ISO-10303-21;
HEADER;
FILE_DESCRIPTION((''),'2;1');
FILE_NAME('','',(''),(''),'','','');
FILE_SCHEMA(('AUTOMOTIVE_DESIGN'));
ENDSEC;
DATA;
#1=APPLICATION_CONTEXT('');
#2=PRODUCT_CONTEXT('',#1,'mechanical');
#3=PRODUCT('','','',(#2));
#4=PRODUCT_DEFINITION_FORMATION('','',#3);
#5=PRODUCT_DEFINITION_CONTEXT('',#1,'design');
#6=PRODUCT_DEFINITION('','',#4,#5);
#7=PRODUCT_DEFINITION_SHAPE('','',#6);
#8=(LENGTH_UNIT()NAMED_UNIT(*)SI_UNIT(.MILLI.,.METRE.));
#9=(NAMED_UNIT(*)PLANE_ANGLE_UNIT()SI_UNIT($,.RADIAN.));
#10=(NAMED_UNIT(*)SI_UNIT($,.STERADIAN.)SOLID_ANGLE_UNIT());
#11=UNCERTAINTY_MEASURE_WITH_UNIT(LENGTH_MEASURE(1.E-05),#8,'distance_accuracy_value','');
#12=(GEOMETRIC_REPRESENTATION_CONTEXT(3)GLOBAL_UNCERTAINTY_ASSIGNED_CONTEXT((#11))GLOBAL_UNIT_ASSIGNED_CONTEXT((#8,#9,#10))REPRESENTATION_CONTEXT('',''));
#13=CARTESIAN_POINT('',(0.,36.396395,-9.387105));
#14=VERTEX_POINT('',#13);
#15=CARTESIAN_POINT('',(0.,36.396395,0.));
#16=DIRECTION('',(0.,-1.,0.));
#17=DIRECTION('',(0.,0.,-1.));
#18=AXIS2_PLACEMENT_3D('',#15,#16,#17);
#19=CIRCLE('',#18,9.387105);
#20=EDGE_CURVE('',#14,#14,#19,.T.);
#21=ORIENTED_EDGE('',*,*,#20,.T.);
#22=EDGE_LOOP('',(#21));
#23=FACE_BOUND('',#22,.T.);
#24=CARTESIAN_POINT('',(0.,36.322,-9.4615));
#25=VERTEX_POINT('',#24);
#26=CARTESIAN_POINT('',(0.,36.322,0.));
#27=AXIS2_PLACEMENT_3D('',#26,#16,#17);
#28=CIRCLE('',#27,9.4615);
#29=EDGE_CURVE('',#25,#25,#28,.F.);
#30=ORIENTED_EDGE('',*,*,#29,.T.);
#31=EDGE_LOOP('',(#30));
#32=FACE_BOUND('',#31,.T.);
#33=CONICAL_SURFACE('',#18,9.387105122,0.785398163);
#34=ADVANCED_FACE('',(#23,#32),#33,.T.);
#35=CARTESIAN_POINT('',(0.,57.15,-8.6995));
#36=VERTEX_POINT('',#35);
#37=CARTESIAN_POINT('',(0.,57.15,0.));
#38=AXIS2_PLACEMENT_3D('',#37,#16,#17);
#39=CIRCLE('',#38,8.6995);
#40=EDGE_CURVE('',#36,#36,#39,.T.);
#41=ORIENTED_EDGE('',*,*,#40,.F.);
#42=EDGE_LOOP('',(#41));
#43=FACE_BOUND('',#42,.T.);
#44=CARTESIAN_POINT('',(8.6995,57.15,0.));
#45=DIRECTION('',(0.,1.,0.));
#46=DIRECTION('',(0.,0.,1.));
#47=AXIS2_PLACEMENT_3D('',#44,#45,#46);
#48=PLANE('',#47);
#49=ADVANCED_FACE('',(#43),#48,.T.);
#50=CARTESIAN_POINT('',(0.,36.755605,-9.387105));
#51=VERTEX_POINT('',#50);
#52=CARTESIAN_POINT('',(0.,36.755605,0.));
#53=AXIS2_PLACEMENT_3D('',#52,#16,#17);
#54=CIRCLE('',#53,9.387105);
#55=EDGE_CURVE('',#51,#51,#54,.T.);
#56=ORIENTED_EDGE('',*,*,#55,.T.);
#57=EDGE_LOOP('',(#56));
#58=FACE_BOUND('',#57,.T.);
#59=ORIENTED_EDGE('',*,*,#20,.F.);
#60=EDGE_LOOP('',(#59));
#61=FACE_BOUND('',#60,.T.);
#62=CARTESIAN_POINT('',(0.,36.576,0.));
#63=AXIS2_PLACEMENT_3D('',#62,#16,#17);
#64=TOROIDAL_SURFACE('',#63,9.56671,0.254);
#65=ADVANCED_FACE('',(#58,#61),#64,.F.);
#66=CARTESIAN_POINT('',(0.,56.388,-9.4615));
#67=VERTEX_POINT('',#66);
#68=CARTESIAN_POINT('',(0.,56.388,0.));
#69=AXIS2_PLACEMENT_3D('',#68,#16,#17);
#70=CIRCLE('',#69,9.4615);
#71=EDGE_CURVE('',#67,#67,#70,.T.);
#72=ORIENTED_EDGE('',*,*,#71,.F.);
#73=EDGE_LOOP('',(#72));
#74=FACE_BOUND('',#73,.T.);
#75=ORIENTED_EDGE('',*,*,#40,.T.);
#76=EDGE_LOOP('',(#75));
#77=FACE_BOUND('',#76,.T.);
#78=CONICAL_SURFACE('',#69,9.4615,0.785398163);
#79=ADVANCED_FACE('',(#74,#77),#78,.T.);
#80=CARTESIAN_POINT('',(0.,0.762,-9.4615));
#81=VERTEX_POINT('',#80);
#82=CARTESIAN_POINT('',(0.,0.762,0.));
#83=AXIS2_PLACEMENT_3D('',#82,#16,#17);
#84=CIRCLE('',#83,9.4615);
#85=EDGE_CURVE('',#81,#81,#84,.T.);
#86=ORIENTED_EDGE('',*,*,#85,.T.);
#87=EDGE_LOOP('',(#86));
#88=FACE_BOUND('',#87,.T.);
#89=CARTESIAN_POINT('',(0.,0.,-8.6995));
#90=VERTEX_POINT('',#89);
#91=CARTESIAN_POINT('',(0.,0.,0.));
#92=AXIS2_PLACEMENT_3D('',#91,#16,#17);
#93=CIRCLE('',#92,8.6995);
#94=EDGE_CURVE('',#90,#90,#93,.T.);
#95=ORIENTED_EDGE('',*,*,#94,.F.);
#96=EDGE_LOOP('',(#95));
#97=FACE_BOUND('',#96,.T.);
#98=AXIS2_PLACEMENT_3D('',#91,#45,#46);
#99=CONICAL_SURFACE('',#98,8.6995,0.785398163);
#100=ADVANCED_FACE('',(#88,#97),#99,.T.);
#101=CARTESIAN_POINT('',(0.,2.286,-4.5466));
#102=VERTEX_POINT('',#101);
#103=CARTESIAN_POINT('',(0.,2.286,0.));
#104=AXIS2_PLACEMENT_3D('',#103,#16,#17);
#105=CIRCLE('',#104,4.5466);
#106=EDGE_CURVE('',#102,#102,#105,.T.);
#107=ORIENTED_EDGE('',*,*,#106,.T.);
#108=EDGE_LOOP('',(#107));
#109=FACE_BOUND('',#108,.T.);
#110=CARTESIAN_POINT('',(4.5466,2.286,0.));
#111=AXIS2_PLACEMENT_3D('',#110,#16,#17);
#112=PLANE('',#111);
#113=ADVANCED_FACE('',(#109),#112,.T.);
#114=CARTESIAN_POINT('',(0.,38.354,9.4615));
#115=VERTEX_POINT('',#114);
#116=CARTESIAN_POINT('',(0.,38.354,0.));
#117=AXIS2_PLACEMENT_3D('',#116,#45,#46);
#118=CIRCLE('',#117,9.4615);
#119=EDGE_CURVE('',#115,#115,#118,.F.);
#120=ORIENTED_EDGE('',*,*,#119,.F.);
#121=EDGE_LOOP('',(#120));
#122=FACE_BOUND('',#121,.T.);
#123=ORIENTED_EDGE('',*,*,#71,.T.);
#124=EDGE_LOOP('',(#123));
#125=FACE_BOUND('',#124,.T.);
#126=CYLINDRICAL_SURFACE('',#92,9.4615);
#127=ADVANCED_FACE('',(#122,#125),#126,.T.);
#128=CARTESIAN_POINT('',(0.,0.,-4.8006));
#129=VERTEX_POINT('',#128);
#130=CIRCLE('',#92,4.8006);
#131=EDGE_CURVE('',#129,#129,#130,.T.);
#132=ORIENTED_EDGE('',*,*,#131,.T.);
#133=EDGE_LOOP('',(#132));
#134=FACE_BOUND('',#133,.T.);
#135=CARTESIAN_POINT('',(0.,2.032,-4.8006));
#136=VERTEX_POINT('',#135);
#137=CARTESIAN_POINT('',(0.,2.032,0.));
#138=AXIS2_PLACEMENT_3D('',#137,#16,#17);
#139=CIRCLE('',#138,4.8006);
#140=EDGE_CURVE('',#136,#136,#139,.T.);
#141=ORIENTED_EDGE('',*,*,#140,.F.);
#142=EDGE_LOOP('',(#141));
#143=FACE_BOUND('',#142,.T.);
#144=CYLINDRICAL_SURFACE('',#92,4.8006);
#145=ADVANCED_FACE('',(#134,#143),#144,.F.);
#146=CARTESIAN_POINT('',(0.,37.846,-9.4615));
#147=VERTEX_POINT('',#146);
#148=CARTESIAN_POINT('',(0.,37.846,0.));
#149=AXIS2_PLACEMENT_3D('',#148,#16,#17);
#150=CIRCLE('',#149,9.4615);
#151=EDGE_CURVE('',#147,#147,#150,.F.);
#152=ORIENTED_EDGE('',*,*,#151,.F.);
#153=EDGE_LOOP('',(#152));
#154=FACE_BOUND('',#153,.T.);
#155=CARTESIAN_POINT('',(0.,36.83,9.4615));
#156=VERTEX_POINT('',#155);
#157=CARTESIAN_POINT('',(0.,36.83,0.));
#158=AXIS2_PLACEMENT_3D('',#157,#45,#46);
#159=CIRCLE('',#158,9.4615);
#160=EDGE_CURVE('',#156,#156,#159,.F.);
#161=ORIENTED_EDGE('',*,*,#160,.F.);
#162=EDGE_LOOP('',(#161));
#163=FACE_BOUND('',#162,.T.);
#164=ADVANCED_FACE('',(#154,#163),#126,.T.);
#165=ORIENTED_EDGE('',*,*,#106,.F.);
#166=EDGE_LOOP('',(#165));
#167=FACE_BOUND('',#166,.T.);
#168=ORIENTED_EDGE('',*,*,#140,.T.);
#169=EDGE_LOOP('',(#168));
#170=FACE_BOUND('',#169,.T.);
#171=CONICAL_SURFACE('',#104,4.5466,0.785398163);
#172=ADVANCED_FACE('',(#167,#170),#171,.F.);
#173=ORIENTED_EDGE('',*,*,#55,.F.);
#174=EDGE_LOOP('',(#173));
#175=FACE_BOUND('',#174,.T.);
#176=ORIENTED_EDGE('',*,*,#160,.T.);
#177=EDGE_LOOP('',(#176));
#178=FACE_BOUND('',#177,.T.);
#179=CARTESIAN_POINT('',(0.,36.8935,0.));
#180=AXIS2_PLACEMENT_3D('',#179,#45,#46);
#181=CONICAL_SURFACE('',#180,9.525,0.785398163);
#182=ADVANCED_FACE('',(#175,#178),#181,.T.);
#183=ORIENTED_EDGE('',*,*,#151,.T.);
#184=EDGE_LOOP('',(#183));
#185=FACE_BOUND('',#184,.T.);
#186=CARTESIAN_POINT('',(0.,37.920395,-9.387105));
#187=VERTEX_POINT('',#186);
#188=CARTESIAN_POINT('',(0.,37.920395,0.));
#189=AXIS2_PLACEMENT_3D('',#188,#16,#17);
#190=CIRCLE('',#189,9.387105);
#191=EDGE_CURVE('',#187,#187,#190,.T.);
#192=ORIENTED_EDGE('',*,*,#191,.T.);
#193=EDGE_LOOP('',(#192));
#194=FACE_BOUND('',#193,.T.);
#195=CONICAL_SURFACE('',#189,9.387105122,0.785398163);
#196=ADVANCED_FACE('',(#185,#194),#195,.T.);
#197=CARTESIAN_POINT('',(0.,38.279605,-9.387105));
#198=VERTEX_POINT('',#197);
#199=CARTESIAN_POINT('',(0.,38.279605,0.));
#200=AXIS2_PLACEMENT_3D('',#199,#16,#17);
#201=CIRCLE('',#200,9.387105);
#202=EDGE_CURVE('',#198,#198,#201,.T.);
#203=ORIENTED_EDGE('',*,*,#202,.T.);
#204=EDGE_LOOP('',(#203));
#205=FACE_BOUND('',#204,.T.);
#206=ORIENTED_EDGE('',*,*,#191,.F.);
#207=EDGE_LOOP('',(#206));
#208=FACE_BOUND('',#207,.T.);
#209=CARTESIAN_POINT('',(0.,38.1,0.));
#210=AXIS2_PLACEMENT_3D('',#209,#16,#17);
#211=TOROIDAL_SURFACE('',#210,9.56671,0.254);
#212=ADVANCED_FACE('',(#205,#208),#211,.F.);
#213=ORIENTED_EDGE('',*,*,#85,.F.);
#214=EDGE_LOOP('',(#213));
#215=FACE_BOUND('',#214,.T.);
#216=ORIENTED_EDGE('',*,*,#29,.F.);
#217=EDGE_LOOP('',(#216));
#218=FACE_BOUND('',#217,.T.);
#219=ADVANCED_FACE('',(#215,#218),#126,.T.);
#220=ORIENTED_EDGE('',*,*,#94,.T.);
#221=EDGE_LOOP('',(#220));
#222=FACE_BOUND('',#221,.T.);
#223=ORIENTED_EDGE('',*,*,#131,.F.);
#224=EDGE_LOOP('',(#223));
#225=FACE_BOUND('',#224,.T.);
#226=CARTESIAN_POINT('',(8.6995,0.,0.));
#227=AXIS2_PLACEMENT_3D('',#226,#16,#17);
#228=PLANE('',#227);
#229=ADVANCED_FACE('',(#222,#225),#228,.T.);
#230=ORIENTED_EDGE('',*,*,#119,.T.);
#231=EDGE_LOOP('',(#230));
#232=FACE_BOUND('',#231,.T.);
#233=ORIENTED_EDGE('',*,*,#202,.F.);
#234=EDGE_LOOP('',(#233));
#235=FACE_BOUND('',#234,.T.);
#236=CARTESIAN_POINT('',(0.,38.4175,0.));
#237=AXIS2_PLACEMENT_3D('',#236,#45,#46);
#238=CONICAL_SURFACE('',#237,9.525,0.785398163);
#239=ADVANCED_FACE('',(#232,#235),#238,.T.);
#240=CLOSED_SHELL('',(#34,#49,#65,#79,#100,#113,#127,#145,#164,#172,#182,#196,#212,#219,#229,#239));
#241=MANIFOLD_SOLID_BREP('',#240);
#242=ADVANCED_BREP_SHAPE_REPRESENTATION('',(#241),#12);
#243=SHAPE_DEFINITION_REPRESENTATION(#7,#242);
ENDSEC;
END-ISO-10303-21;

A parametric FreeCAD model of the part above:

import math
import FreeCAD as App
import Part
import Sketcher

V = App.Vector
Q = App.Units.Quantity


def add_polygon(sketch, points):
    """Adds a closed chain of lines whose ends are joined by coincident constraints."""
    first, n = sketch.GeometryCount, len(points)
    for a, b in zip(points, points[1:] + points[:1]):
        sketch.addGeometry(Part.LineSegment(App.Vector(*a, 0), App.Vector(*b, 0)), False)
    for i in range(n):
        sketch.addConstraint(Sketcher.Constraint("Coincident", first + i, 2, first + (i + 1) % n, 1))

doc = App.newDocument("Part")
params = doc.addObject("Spreadsheet::Sheet", "Params")
for row, (alias, value) in enumerate([
    ("sketch1_height", "2.19 in"),
    ("sketch1_height2", "2.16 in"),
    ("sketch1_height3", "0.08 in"),
    ("sketch1_width", "0.179 in"),
    ("revolution_angle", "360 deg"),
    ("sketch2_radius", "0.01 in"),
    ("sketch2_height", "0.025 in"),
    ("groove_angle", "360 deg"),
    ("linearpattern_pitch", "0.06 in"),
], start=1):
    params.set(f"A{row}", alias)
    params.set(f"B{row}", "=" + value)
    params.setAlias(f"B{row}", alias)

body = doc.addObject("PartDesign::Body", "Body")

# Sketch on XY plane
sketch1 = doc.addObject("Sketcher::SketchObject", "Sketch")
body.addObject(sketch1)
sketch1.AttachmentSupport = (doc.XY_Plane, [""])
sketch1.MapMode = "FlatFace"
add_polygon(sketch1, [(9.46, 0.76), (9.46, 56.39), (8.7, 57.15), (0, 57.15), (0, 2.29), (4.55, 2.29), (4.8, 2.03), (4.8, 0), (8.7, 0)])  # lines 0-8
sketch1.addConstraint(Sketcher.Constraint("Vertical", 0))
sketch1.addConstraint(Sketcher.Constraint("Horizontal", 2))
sketch1.addConstraint(Sketcher.Constraint("Vertical", 3))
sketch1.addConstraint(Sketcher.Constraint("Horizontal", 4))
sketch1.addConstraint(Sketcher.Constraint("Vertical", 6))
sketch1.addConstraint(Sketcher.Constraint("Horizontal", 7))
sketch1.addConstraint(Sketcher.Constraint("PointOnObject", 2, 2, -2))
sketch1.addConstraint(Sketcher.Constraint("PointOnObject", 6, 2, -1))
sketch1.addConstraint(Sketcher.Constraint("Parallel", 1, 5))
sketch1.addConstraint(Sketcher.Constraint("Perpendicular", 5, 8))
sketch1.addConstraint(Sketcher.Constraint("Vertical", 1, 2, 7, 2))
sketch1.addConstraint(Sketcher.Constraint("Equal", 1, 8))
sketch1.addConstraint(Sketcher.Constraint("DistanceY", 0, 1, 0, 2, Q("2.19 in")))
sketch1.addConstraint(Sketcher.Constraint("DistanceY", 3, 2, 3, 1, Q("2.16 in")))
sketch1.addConstraint(Sketcher.Constraint("DistanceY", 6, 2, 6, 1, Q("0.08 in")))
sketch1.addConstraint(Sketcher.Constraint("DistanceX", 4, 1, 4, 2, Q("0.179 in")))
sketch1.addConstraint(Sketcher.Constraint("DistanceY", -1, 1, 0, 2, Q("2.22 in")))
sketch1.addConstraint(Sketcher.Constraint("DistanceX", 2, 2, 2, 1, Q("0.3425 in")))
sketch1.setExpression("Constraints[21]", "Params.sketch1_height")
sketch1.setExpression("Constraints[22]", "Params.sketch1_height2")
sketch1.setExpression("Constraints[23]", "Params.sketch1_height3")
sketch1.setExpression("Constraints[24]", "Params.sketch1_width")
revolution = doc.addObject("PartDesign::Revolution", "Revolution")
body.addObject(revolution)
revolution.Profile = sketch1
revolution.ReferenceAxis = (sketch1, ["V_Axis"])
revolution.setExpression("Angle", "Params.revolution_angle")

# Sketch on XY plane
sketch2 = doc.addObject("Sketcher::SketchObject", "Sketch001")
body.addObject(sketch2)
sketch2.AttachmentSupport = (doc.XY_Plane, [""])
sketch2.MapMode = "FlatFace"
sketch2.addGeometry(Part.LineSegment(V(9.53, 36.26, 0), V(9.53, 36.89, 0)), False)
sketch2.addGeometry(Part.LineSegment(V(9.53, 36.89, 0), V(9.39, 36.76, 0)), False)
sketch2.addGeometry(Part.ArcOfCircle(Part.Circle(V(9.57, 36.58, 0), V(0, 0, 1), 0.25), math.radians(135), math.radians(225)), False)
sketch2.addGeometry(Part.LineSegment(V(9.39, 36.4, 0), V(9.53, 36.26, 0)), False)
sketch2.addConstraint(Sketcher.Constraint("Coincident", 0, 2, 1, 1))
sketch2.addConstraint(Sketcher.Constraint("Tangent", 1, 2, 2, 1))
sketch2.addConstraint(Sketcher.Constraint("Tangent", 2, 2, 3, 1))
sketch2.addConstraint(Sketcher.Constraint("Coincident", 3, 2, 0, 1))
sketch2.addConstraint(Sketcher.Constraint("Vertical", 0))
sketch2.addConstraint(Sketcher.Constraint("Perpendicular", 1, 3))
sketch2.addConstraint(Sketcher.Constraint("Vertical", 1, 2, 2, 2))
sketch2.addConstraint(Sketcher.Constraint("Radius", 2, Q("0.01 in")))
sketch2.addConstraint(Sketcher.Constraint("DistanceY", 0, 1, 0, 2, Q("0.025 in")))
sketch2.addConstraint(Sketcher.Constraint("DistanceY", -1, 1, 2, 3, Q("1.44 in")))
sketch2.addConstraint(Sketcher.Constraint("DistanceX", -1, 1, 0, 2, Q("0.375 in")))
sketch2.setExpression("Constraints[7]", "Params.sketch2_radius")
sketch2.setExpression("Constraints[8]", "Params.sketch2_height")
groove = doc.addObject("PartDesign::Groove", "Groove")
body.addObject(groove)
groove.Profile = sketch2
groove.ReferenceAxis = (sketch2, ["V_Axis"])
groove.setExpression("Angle", "Params.groove_angle")
doc.recompute()

linearpattern = doc.addObject("PartDesign::LinearPattern", "LinearPattern")
body.addObject(linearpattern)
linearpattern.Originals = [groove]
linearpattern.Direction = (doc.Y_Axis, [""])
linearpattern.Mode = "offset"
linearpattern.setExpression("Offset", "Params.linearpattern_pitch")
linearpattern.Occurrences = 2
body.Tip = linearpattern

doc.recompute()
